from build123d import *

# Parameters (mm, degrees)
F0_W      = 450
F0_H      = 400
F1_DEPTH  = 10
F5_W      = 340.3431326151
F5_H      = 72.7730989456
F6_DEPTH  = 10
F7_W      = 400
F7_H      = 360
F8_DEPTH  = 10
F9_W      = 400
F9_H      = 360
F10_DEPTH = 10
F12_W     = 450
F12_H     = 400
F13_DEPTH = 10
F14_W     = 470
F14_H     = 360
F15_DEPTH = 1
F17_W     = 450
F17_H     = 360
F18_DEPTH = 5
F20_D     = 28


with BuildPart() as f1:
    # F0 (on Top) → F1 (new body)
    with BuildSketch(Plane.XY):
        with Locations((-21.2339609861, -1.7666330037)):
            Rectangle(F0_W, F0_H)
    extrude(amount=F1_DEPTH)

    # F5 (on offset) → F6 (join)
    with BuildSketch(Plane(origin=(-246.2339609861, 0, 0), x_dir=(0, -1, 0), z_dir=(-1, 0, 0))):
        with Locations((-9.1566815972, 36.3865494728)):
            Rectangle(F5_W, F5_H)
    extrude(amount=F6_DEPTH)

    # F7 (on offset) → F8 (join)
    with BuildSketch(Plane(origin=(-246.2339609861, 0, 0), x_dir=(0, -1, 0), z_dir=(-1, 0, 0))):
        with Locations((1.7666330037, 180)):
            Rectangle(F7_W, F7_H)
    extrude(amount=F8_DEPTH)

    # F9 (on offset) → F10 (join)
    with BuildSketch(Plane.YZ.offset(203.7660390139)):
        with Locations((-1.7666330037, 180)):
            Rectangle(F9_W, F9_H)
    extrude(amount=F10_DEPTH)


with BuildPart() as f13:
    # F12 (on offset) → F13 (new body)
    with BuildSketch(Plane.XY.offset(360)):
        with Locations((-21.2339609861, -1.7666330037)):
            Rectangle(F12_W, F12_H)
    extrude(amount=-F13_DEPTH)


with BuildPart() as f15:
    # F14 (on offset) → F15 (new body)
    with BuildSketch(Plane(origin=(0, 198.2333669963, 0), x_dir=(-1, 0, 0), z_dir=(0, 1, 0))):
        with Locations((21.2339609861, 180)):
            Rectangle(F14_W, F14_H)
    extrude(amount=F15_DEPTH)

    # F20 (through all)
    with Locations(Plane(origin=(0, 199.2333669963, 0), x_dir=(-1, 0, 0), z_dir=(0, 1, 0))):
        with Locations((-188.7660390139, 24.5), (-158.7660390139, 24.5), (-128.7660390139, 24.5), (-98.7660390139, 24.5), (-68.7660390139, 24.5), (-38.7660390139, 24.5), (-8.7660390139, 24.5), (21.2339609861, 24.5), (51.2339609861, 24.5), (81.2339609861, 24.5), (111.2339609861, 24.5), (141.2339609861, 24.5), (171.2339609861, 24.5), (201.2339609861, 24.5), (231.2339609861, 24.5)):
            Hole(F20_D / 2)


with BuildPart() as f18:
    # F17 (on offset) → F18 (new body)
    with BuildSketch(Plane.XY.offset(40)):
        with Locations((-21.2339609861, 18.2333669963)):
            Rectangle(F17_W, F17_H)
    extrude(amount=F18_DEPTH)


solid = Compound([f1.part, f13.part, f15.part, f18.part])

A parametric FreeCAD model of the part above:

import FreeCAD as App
import Part
import Sketcher

V = App.Vector

doc = App.newDocument("Part")
body = doc.addObject("PartDesign::Body", "Body")

sketch1 = doc.addObject("Sketcher::SketchObject", "Sketch")
body.addObject(sketch1)
sketch1.AttachmentSupport = (doc.XY_Plane, [""])
sketch1.MapMode = "FlatFace"
sketch1.addGeometry(Part.LineSegment(V(-246.233961, 198.233367, 0), V(-246.233961, -201.766633, 0)), False)
sketch1.addGeometry(Part.LineSegment(V(-246.233961, -201.766633, 0), V(203.766039, -201.766633, 0)), False)
sketch1.addGeometry(Part.LineSegment(V(203.766039, -201.766633, 0), V(203.766039, 198.233367, 0)), False)
sketch1.addGeometry(Part.LineSegment(V(203.766039, 198.233367, 0), V(-246.233961, 198.233367, 0)), False)
sketch1.addConstraint(Sketcher.Constraint("Coincident", 0, 2, 1, 1))
sketch1.addConstraint(Sketcher.Constraint("Coincident", 1, 2, 2, 1))
sketch1.addConstraint(Sketcher.Constraint("Coincident", 2, 2, 3, 1))
sketch1.addConstraint(Sketcher.Constraint("Coincident", 3, 2, 0, 1))
sketch1.addConstraint(Sketcher.Constraint("Vertical", 0))
sketch1.addConstraint(Sketcher.Constraint("Horizontal", 1))
sketch1.addConstraint(Sketcher.Constraint("Vertical", 2))
sketch1.addConstraint(Sketcher.Constraint("Horizontal", 3))
sketch1.addConstraint(Sketcher.Constraint("DistanceX", 1, 1, 1, 2, 450.0))
sketch1.addConstraint(Sketcher.Constraint("DistanceY", 0, 2, 0, 1, 400.0))
sketch1.addConstraint(Sketcher.Constraint("DistanceX", 0, 2, -1, 1, 246.233961))
sketch1.addConstraint(Sketcher.Constraint("DistanceY", 0, 2, -1, 1, 201.766633))
pad1 = doc.addObject("PartDesign::Pad", "Pad")
body.addObject(pad1)
pad1.Profile = sketch1
pad1.Length = 10

sketch2 = doc.addObject("Sketcher::SketchObject", "Sketch001")
body.addObject(sketch2)
sketch2.AttachmentSupport = (doc.YZ_Plane, [""])
sketch2.MapMode = "FlatFace"
sketch2.AttachmentOffset = App.Placement(V(0, 0, -246.233961), App.Rotation())
sketch2.addGeometry(Part.LineSegment(V(179.328248, 72.773099, 0), V(179.328248, 0, 0)), False)
sketch2.addGeometry(Part.LineSegment(V(179.328248, 0, 0), V(-161.014885, 0, 0)), False)
sketch2.addGeometry(Part.LineSegment(V(-161.014885, 0, 0), V(-161.014885, 72.773099, 0)), False)
sketch2.addGeometry(Part.LineSegment(V(-161.014885, 72.773099, 0), V(179.328248, 72.773099, 0)), False)
sketch2.addConstraint(Sketcher.Constraint("Coincident", 0, 2, 1, 1))
sketch2.addConstraint(Sketcher.Constraint("Coincident", 1, 2, 2, 1))
sketch2.addConstraint(Sketcher.Constraint("Coincident", 2, 2, 3, 1))
sketch2.addConstraint(Sketcher.Constraint("Coincident", 3, 2, 0, 1))
sketch2.addConstraint(Sketcher.Constraint("Vertical", 0))
sketch2.addConstraint(Sketcher.Constraint("Horizontal", 1))
sketch2.addConstraint(Sketcher.Constraint("Vertical", 2))
sketch2.addConstraint(Sketcher.Constraint("Horizontal", 3))
sketch2.addConstraint(Sketcher.Constraint("PointOnObject", 0, 2, -1))
sketch2.addConstraint(Sketcher.Constraint("DistanceY", 0, 2, 0, 1, 72.773099))
sketch2.addConstraint(Sketcher.Constraint("DistanceX", 1, 2, 1, 1, 340.343133))
sketch2.addConstraint(Sketcher.Constraint("DistanceX", -1, 1, 0, 2, 179.328248))
pad2 = doc.addObject("PartDesign::Pad", "Pad001")
body.addObject(pad2)
pad2.Profile = sketch2
pad2.Length = 10
pad2.Reversed = True

sketch3 = doc.addObject("Sketcher::SketchObject", "Sketch002")
body.addObject(sketch3)
sketch3.AttachmentSupport = (doc.YZ_Plane, [""])
sketch3.MapMode = "FlatFace"
sketch3.AttachmentOffset = App.Placement(V(0, 0, -246.233961), App.Rotation())
sketch3.addGeometry(Part.LineSegment(V(198.233367, 360, 0), V(198.233367, 0, 0)), False)
sketch3.addGeometry(Part.LineSegment(V(198.233367, 0, 0), V(-201.766633, 0, 0)), False)
sketch3.addGeometry(Part.LineSegment(V(-201.766633, 0, 0), V(-201.766633, 360, 0)), False)
sketch3.addGeometry(Part.LineSegment(V(-201.766633, 360, 0), V(198.233367, 360, 0)), False)
sketch3.addConstraint(Sketcher.Constraint("Coincident", 0, 2, 1, 1))
sketch3.addConstraint(Sketcher.Constraint("Coincident", 1, 2, 2, 1))
sketch3.addConstraint(Sketcher.Constraint("Coincident", 2, 2, 3, 1))
sketch3.addConstraint(Sketcher.Constraint("Coincident", 3, 2, 0, 1))
sketch3.addConstraint(Sketcher.Constraint("Vertical", 0))
sketch3.addConstraint(Sketcher.Constraint("Horizontal", 1))
sketch3.addConstraint(Sketcher.Constraint("Vertical", 2))
sketch3.addConstraint(Sketcher.Constraint("Horizontal", 3))
sketch3.addConstraint(Sketcher.Constraint("PointOnObject", 0, 2, -1))
sketch3.addConstraint(Sketcher.Constraint("DistanceX", 1, 2, 1, 1, 400.0))
sketch3.addConstraint(Sketcher.Constraint("DistanceY", 0, 2, 0, 1, 360.0))
sketch3.addConstraint(Sketcher.Constraint("DistanceX", -1, 1, 0, 2, 198.233367))
pad3 = doc.addObject("PartDesign::Pad", "Pad002")
body.addObject(pad3)
pad3.Profile = sketch3
pad3.Length = 10
pad3.Reversed = True

sketch4 = doc.addObject("Sketcher::SketchObject", "Sketch003")
body.addObject(sketch4)
sketch4.AttachmentSupport = (doc.YZ_Plane, [""])
sketch4.MapMode = "FlatFace"
sketch4.AttachmentOffset = App.Placement(V(0, 0, 203.766039), App.Rotation())
sketch4.addGeometry(Part.LineSegment(V(-201.766633, 360, 0), V(-201.766633, 0, 0)), False)
sketch4.addGeometry(Part.LineSegment(V(-201.766633, 0, 0), V(198.233367, 0, 0)), False)
sketch4.addGeometry(Part.LineSegment(V(198.233367, 0, 0), V(198.233367, 360, 0)), False)
sketch4.addGeometry(Part.LineSegment(V(198.233367, 360, 0), V(-201.766633, 360, 0)), False)
sketch4.addConstraint(Sketcher.Constraint("Coincident", 0, 2, 1, 1))
sketch4.addConstraint(Sketcher.Constraint("Coincident", 1, 2, 2, 1))
sketch4.addConstraint(Sketcher.Constraint("Coincident", 2, 2, 3, 1))
sketch4.addConstraint(Sketcher.Constraint("Coincident", 3, 2, 0, 1))
sketch4.addConstraint(Sketcher.Constraint("Vertical", 0))
sketch4.addConstraint(Sketcher.Constraint("Horizontal", 1))
sketch4.addConstraint(Sketcher.Constraint("Vertical", 2))
sketch4.addConstraint(Sketcher.Constraint("Horizontal", 3))
sketch4.addConstraint(Sketcher.Constraint("PointOnObject", 0, 2, -1))
sketch4.addConstraint(Sketcher.Constraint("DistanceX", 1, 1, 1, 2, 400.0))
sketch4.addConstraint(Sketcher.Constraint("DistanceY", 0, 2, 0, 1, 360.0))
sketch4.addConstraint(Sketcher.Constraint("DistanceX", 0, 2, -1, 1, 201.766633))
pad4 = doc.addObject("PartDesign::Pad", "Pad003")
body.addObject(pad4)
pad4.Profile = sketch4
pad4.Length = 10
body2 = doc.addObject("PartDesign::Body", "Body001")

sketch5 = doc.addObject("Sketcher::SketchObject", "Sketch004")
body2.addObject(sketch5)
sketch5.AttachmentSupport = (doc.getObject("XY_Plane001"), [""])
sketch5.MapMode = "FlatFace"
sketch5.AttachmentOffset = App.Placement(V(0, 0, 360), App.Rotation())
sketch5.addGeometry(Part.LineSegment(V(-246.233961, 198.233367, 0), V(-246.233961, -201.766633, 0)), False)
sketch5.addGeometry(Part.LineSegment(V(-246.233961, -201.766633, 0), V(203.766039, -201.766633, 0)), False)
sketch5.addGeometry(Part.LineSegment(V(203.766039, -201.766633, 0), V(203.766039, 198.233367, 0)), False)
sketch5.addGeometry(Part.LineSegment(V(203.766039, 198.233367, 0), V(-246.233961, 198.233367, 0)), False)
sketch5.addConstraint(Sketcher.Constraint("Coincident", 0, 2, 1, 1))
sketch5.addConstraint(Sketcher.Constraint("Coincident", 1, 2, 2, 1))
sketch5.addConstraint(Sketcher.Constraint("Coincident", 2, 2, 3, 1))
sketch5.addConstraint(Sketcher.Constraint("Coincident", 3, 2, 0, 1))
sketch5.addConstraint(Sketcher.Constraint("Vertical", 0))
sketch5.addConstraint(Sketcher.Constraint("Horizontal", 1))
sketch5.addConstraint(Sketcher.Constraint("Vertical", 2))
sketch5.addConstraint(Sketcher.Constraint("Horizontal", 3))
sketch5.addConstraint(Sketcher.Constraint("DistanceX", 1, 1, 1, 2, 450.0))
sketch5.addConstraint(Sketcher.Constraint("DistanceY", 0, 2, 0, 1, 400.0))
sketch5.addConstraint(Sketcher.Constraint("DistanceX", 0, 2, -1, 1, 246.233961))
sketch5.addConstraint(Sketcher.Constraint("DistanceY", 0, 2, -1, 1, 201.766633))
pad5 = doc.addObject("PartDesign::Pad", "Pad004")
body2.addObject(pad5)
pad5.Profile = sketch5
pad5.Length = 10
pad5.Reversed = True
body3 = doc.addObject("PartDesign::Body", "Body002")

sketch6 = doc.addObject("Sketcher::SketchObject", "Sketch005")
body3.addObject(sketch6)
sketch6.AttachmentSupport = (doc.getObject("XZ_Plane002"), [""])
sketch6.MapMode = "FlatFace"
sketch6.AttachmentOffset = App.Placement(V(0, 0, -198.233367), App.Rotation())
sketch6.addGeometry(Part.LineSegment(V(213.766039, 360, 0), V(213.766039, 0, 0)), False)
sketch6.addGeometry(Part.LineSegment(V(213.766039, 0, 0), V(-256.233961, 0, 0)), False)
sketch6.addGeometry(Part.LineSegment(V(-256.233961, 0, 0), V(-256.233961, 360, 0)), False)
sketch6.addGeometry(Part.LineSegment(V(-256.233961, 360, 0), V(213.766039, 360, 0)), False)
sketch6.addConstraint(Sketcher.Constraint("Coincident", 0, 2, 1, 1))
sketch6.addConstraint(Sketcher.Constraint("Coincident", 1, 2, 2, 1))
sketch6.addConstraint(Sketcher.Constraint("Coincident", 2, 2, 3, 1))
sketch6.addConstraint(Sketcher.Constraint("Coincident", 3, 2, 0, 1))
sketch6.addConstraint(Sketcher.Constraint("Vertical", 0))
sketch6.addConstraint(Sketcher.Constraint("Horizontal", 1))
sketch6.addConstraint(Sketcher.Constraint("Vertical", 2))
sketch6.addConstraint(Sketcher.Constraint("Horizontal", 3))
sketch6.addConstraint(Sketcher.Constraint("PointOnObject", 0, 2, -1))
sketch6.addConstraint(Sketcher.Constraint("DistanceX", 1, 2, 1, 1, 470.0))
sketch6.addConstraint(Sketcher.Constraint("DistanceY", 0, 2, 0, 1, 360.0))
sketch6.addConstraint(Sketcher.Constraint("DistanceX", -1, 1, 0, 2, 213.766039))
pad6 = doc.addObject("PartDesign::Pad", "Pad005")
body3.addObject(pad6)
pad6.Profile = sketch6
pad6.Length = 1
pad6.Reversed = True

sketch7 = doc.addObject("Sketcher::SketchObject", "Sketch006")
body3.addObject(sketch7)
sketch7.AttachmentSupport = (doc.getObject("XZ_Plane002"), [""])
sketch7.MapMode = "FlatFace"
sketch7.AttachmentOffset = App.Placement(V(0, 0, -199.233367), App.Rotation())
sketch7.addGeometry(Part.Circle(V(188.766039, 24.5, 0), V(0, 0, 1), 14), False)
sketch7.addGeometry(Part.Circle(V(158.766039, 24.5, 0), V(0, 0, 1), 14), False)
sketch7.addGeometry(Part.Circle(V(128.766039, 24.5, 0), V(0, 0, 1), 14), False)
sketch7.addGeometry(Part.Circle(V(98.766039, 24.5, 0), V(0, 0, 1), 14), False)
sketch7.addGeometry(Part.Circle(V(68.766039, 24.5, 0), V(0, 0, 1), 14), False)
sketch7.addGeometry(Part.Circle(V(38.766039, 24.5, 0), V(0, 0, 1), 14), False)
sketch7.addGeometry(Part.Circle(V(8.766039, 24.5, 0), V(0, 0, 1), 14), False)
sketch7.addGeometry(Part.Circle(V(-21.233961, 24.5, 0), V(0, 0, 1), 14), False)
sketch7.addGeometry(Part.Circle(V(-51.233961, 24.5, 0), V(0, 0, 1), 14), False)
sketch7.addGeometry(Part.Circle(V(-81.233961, 24.5, 0), V(0, 0, 1), 14), False)
sketch7.addGeometry(Part.Circle(V(-111.233961, 24.5, 0), V(0, 0, 1), 14), False)
sketch7.addGeometry(Part.Circle(V(-141.233961, 24.5, 0), V(0, 0, 1), 14), False)
sketch7.addGeometry(Part.Circle(V(-171.233961, 24.5, 0), V(0, 0, 1), 14), False)
sketch7.addGeometry(Part.Circle(V(-201.233961, 24.5, 0), V(0, 0, 1), 14), False)
sketch7.addGeometry(Part.Circle(V(-231.233961, 24.5, 0), V(0, 0, 1), 14), False)
sketch7.addConstraint(Sketcher.Constraint("Equal", 0, 1))
sketch7.addConstraint(Sketcher.Constraint("Equal", 1, 2))
sketch7.addConstraint(Sketcher.Constraint("Equal", 2, 3))
sketch7.addConstraint(Sketcher.Constraint("Equal", 3, 4))
sketch7.addConstraint(Sketcher.Constraint("Equal", 4, 5))
sketch7.addConstraint(Sketcher.Constraint("Equal", 5, 6))
sketch7.addConstraint(Sketcher.Constraint("Equal", 6, 7))
sketch7.addConstraint(Sketcher.Constraint("Equal", 7, 8))
sketch7.addConstraint(Sketcher.Constraint("Equal", 8, 9))
sketch7.addConstraint(Sketcher.Constraint("Equal", 9, 10))
sketch7.addConstraint(Sketcher.Constraint("Equal", 10, 11))
sketch7.addConstraint(Sketcher.Constraint("Equal", 11, 12))
sketch7.addConstraint(Sketcher.Constraint("Equal", 12, 13))
sketch7.addConstraint(Sketcher.Constraint("Equal", 13, 14))
sketch7.addConstraint(Sketcher.Constraint("Horizontal", 0, 3, 1, 3))
sketch7.addConstraint(Sketcher.Constraint("Horizontal", 1, 3, 2, 3))
sketch7.addConstraint(Sketcher.Constraint("Horizontal", 2, 3, 3, 3))
sketch7.addConstraint(Sketcher.Constraint("Horizontal", 3, 3, 4, 3))
sketch7.addConstraint(Sketcher.Constraint("Horizontal", 4, 3, 5, 3))
sketch7.addConstraint(Sketcher.Constraint("Horizontal", 5, 3, 6, 3))
sketch7.addConstraint(Sketcher.Constraint("Horizontal", 6, 3, 7, 3))
sketch7.addConstraint(Sketcher.Constraint("Horizontal", 7, 3, 8, 3))
sketch7.addConstraint(Sketcher.Constraint("Horizontal", 8, 3, 9, 3))
sketch7.addConstraint(Sketcher.Constraint("Horizontal", 9, 3, 10, 3))
sketch7.addConstraint(Sketcher.Constraint("Horizontal", 10, 3, 11, 3))
sketch7.addConstraint(Sketcher.Constraint("Horizontal", 11, 3, 12, 3))
sketch7.addConstraint(Sketcher.Constraint("Horizontal", 12, 3, 13, 3))
sketch7.addConstraint(Sketcher.Constraint("Horizontal", 13, 3, 14, 3))
sketch7.addConstraint(Sketcher.Constraint("Diameter", 0, 28.0))
sketch7.addConstraint(Sketcher.Constraint("DistanceX", 1, 3, 0, 3, 30.0))
sketch7.addConstraint(Sketcher.Constraint("DistanceX", 2, 3, 1, 3, 30.0))
sketch7.addConstraint(Sketcher.Constraint("DistanceX", 3, 3, 2, 3, 30.0))
sketch7.addConstraint(Sketcher.Constraint("DistanceX", 4, 3, 3, 3, 30.0))
sketch7.addConstraint(Sketcher.Constraint("DistanceX", 5, 3, 4, 3, 30.0))
sketch7.addConstraint(Sketcher.Constraint("DistanceX", 6, 3, 5, 3, 30.0))
sketch7.addConstraint(Sketcher.Constraint("DistanceX", 7, 3, 6, 3, 30.0))
sketch7.addConstraint(Sketcher.Constraint("DistanceX", 8, 3, 7, 3, 30.0))
sketch7.addConstraint(Sketcher.Constraint("DistanceX", 9, 3, 8, 3, 30.0))
sketch7.addConstraint(Sketcher.Constraint("DistanceX", 10, 3, 9, 3, 30.0))
sketch7.addConstraint(Sketcher.Constraint("DistanceX", 11, 3, 10, 3, 30.0))
sketch7.addConstraint(Sketcher.Constraint("DistanceX", 12, 3, 11, 3, 30.0))
sketch7.addConstraint(Sketcher.Constraint("DistanceX", 13, 3, 12, 3, 30.0))
sketch7.addConstraint(Sketcher.Constraint("DistanceX", 14, 3, 13, 3, 30.0))
sketch7.addConstraint(Sketcher.Constraint("DistanceY", -1, 1, 0, 3, 24.5))
sketch7.addConstraint(Sketcher.Constraint("DistanceX", -1, 1, 0, 3, 188.766039))
doc.recompute()
hole = doc.addObject("PartDesign::Hole", "Hole")
body3.addObject(hole)
hole.Profile = sketch7
hole.ThreadType = "None"
hole.Diameter = 28
hole.DepthType = "ThroughAll"
hole.Reversed = True
body4 = doc.addObject("PartDesign::Body", "Body003")

sketch8 = doc.addObject("Sketcher::SketchObject", "Sketch007")
body4.addObject(sketch8)
sketch8.AttachmentSupport = (doc.getObject("XY_Plane003"), [""])
sketch8.MapMode = "FlatFace"
sketch8.AttachmentOffset = App.Placement(V(0, 0, 40), App.Rotation())
sketch8.addGeometry(Part.LineSegment(V(-246.233961, 198.233367, 0), V(-246.233961, -161.766633, 0)), False)
sketch8.addGeometry(Part.LineSegment(V(-246.233961, -161.766633, 0), V(203.766039, -161.766633, 0)), False)
sketch8.addGeometry(Part.LineSegment(V(203.766039, -161.766633, 0), V(203.766039, 198.233367, 0)), False)
sketch8.addGeometry(Part.LineSegment(V(203.766039, 198.233367, 0), V(-246.233961, 198.233367, 0)), False)
sketch8.addConstraint(Sketcher.Constraint("Coincident", 0, 2, 1, 1))
sketch8.addConstraint(Sketcher.Constraint("Coincident", 1, 2, 2, 1))
sketch8.addConstraint(Sketcher.Constraint("Coincident", 2, 2, 3, 1))
sketch8.addConstraint(Sketcher.Constraint("Coincident", 3, 2, 0, 1))
sketch8.addConstraint(Sketcher.Constraint("Vertical", 0))
sketch8.addConstraint(Sketcher.Constraint("Horizontal", 1))
sketch8.addConstraint(Sketcher.Constraint("Vertical", 2))
sketch8.addConstraint(Sketcher.Constraint("Horizontal", 3))
sketch8.addConstraint(Sketcher.Constraint("DistanceX", 1, 1, 1, 2, 450.0))
sketch8.addConstraint(Sketcher.Constraint("DistanceY", 0, 2, 0, 1, 360.0))
sketch8.addConstraint(Sketcher.Constraint("DistanceX", 0, 2, -1, 1, 246.233961))
sketch8.addConstraint(Sketcher.Constraint("DistanceY", 0, 2, -1, 1, 161.766633))
pad7 = doc.addObject("PartDesign::Pad", "Pad006")
body4.addObject(pad7)
pad7.Profile = sketch8
pad7.Length = 5

doc.recompute()
